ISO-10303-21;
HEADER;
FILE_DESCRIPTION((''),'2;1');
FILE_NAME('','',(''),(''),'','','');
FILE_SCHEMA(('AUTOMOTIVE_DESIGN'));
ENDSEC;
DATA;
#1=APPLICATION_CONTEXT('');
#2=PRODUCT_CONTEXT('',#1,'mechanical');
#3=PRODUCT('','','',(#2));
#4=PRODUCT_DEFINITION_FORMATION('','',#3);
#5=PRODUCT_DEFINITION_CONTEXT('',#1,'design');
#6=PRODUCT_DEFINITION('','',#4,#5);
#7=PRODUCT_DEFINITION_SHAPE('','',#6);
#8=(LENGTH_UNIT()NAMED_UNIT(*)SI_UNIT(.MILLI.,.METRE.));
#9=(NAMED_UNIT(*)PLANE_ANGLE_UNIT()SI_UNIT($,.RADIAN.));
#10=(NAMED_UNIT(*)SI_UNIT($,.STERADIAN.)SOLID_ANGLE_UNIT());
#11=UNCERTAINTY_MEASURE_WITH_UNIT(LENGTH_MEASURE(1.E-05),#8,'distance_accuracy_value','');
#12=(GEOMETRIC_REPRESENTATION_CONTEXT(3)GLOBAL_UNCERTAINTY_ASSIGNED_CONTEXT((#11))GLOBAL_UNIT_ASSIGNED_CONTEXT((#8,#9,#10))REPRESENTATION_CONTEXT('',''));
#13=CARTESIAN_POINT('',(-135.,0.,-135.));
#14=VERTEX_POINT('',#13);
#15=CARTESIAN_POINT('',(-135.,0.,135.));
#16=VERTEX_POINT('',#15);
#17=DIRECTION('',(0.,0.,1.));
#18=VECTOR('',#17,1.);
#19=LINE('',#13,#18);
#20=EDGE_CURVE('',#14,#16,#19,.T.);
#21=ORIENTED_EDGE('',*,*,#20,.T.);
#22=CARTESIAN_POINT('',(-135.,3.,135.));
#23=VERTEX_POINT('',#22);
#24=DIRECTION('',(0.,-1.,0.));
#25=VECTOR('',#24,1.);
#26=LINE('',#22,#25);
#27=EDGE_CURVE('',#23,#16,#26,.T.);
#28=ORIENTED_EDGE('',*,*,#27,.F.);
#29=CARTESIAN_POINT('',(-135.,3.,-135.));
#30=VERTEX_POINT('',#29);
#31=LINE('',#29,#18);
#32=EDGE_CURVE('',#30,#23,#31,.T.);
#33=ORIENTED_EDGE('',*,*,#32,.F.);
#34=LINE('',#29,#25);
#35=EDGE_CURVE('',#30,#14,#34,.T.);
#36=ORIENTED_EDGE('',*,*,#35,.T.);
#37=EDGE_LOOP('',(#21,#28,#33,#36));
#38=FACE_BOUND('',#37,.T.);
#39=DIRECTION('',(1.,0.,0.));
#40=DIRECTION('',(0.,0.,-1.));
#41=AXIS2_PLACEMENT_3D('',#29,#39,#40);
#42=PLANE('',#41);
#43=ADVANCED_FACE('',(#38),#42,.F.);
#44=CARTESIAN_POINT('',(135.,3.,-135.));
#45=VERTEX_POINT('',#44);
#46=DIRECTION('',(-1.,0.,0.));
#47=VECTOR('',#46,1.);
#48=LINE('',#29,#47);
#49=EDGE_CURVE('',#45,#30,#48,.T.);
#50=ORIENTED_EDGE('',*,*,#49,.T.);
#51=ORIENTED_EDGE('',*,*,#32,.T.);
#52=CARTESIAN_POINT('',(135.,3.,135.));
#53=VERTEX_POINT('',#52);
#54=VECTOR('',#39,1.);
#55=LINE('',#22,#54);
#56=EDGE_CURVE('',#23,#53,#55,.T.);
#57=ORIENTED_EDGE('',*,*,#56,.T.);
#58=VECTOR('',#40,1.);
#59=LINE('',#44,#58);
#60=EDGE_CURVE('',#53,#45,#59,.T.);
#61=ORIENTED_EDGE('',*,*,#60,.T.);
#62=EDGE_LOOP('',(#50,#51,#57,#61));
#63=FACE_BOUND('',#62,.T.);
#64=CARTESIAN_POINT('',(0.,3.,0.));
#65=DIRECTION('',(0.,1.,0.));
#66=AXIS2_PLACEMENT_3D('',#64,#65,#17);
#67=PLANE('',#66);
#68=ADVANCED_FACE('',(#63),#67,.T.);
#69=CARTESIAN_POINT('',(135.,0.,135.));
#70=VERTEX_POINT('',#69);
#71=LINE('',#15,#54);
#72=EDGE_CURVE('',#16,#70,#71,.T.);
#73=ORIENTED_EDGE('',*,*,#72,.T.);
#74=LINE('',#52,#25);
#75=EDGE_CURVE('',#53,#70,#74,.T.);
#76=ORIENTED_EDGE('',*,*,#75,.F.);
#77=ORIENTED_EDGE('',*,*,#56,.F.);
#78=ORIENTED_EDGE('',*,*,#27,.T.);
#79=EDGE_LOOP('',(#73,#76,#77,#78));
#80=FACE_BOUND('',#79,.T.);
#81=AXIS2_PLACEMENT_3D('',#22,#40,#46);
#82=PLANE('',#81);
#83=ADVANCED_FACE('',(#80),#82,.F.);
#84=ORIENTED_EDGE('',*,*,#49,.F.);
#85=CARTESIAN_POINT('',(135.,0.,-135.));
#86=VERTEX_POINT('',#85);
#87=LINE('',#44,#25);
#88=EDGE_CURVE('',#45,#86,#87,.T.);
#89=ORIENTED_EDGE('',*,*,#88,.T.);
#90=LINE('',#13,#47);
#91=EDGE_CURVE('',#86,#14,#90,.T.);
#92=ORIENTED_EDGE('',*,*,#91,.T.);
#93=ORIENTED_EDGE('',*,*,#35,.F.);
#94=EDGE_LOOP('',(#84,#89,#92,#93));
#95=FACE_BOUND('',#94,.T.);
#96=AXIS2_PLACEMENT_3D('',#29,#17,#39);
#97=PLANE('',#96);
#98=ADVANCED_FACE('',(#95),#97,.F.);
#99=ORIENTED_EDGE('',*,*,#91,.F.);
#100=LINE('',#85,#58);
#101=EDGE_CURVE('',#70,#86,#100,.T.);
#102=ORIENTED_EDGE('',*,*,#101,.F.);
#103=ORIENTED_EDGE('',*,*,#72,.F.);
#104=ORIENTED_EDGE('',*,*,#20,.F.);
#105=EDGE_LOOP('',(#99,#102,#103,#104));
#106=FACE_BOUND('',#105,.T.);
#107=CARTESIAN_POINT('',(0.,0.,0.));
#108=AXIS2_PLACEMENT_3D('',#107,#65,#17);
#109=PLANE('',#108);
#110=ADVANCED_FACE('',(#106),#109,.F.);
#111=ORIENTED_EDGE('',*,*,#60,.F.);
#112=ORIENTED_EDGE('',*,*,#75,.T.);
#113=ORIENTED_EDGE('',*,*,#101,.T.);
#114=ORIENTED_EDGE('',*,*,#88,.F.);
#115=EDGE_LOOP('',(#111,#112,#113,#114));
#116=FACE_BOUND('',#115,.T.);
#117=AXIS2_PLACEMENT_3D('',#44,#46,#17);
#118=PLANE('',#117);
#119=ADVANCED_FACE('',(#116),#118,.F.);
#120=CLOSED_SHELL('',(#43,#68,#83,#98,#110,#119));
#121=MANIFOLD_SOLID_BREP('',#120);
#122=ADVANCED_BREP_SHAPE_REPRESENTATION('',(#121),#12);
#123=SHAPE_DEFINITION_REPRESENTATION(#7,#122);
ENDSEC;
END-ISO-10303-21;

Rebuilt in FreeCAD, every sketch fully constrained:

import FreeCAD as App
import Part
import Sketcher

V = App.Vector
Q = App.Units.Quantity


def add_polygon(sketch, points):
    """Adds a closed chain of lines whose ends are joined by coincident constraints."""
    first, n = sketch.GeometryCount, len(points)
    for a, b in zip(points, points[1:] + points[:1]):
        sketch.addGeometry(Part.LineSegment(App.Vector(*a, 0), App.Vector(*b, 0)), False)
    for i in range(n):
        sketch.addConstraint(Sketcher.Constraint("Coincident", first + i, 2, first + (i + 1) % n, 1))

doc = App.newDocument("Part")
body = doc.addObject("PartDesign::Body", "Body")

sketch1 = body.newObject("Sketcher::SketchObject", "Sketch")
sketch1.AttachmentSupport = (doc.getObject("XZ_Plane"), [""])
sketch1.MapMode = "FlatFace"
add_polygon(sketch1, [(-135, -135), (-135, 135), (135, 135), (135, -135)])
sketch1.addConstraint([
    Sketcher.Constraint("Vertical", 0),
    Sketcher.Constraint("Horizontal", 1),
    Sketcher.Constraint("Vertical", 2),
    Sketcher.Constraint("Horizontal", 3),
    Sketcher.Constraint("Symmetric", 0, 2, 2, 2, -1, 1),
    Sketcher.Constraint("Equal", 3, 0),
    Sketcher.Constraint("DistanceX", 1, 1, 1, 2, Q("270 mm")),
])
pad1 = body.newObject("PartDesign::Pad", "Pad")
pad1.Profile = sketch1
pad1.Length = 3
pad1.Reversed = True

doc.recompute()
